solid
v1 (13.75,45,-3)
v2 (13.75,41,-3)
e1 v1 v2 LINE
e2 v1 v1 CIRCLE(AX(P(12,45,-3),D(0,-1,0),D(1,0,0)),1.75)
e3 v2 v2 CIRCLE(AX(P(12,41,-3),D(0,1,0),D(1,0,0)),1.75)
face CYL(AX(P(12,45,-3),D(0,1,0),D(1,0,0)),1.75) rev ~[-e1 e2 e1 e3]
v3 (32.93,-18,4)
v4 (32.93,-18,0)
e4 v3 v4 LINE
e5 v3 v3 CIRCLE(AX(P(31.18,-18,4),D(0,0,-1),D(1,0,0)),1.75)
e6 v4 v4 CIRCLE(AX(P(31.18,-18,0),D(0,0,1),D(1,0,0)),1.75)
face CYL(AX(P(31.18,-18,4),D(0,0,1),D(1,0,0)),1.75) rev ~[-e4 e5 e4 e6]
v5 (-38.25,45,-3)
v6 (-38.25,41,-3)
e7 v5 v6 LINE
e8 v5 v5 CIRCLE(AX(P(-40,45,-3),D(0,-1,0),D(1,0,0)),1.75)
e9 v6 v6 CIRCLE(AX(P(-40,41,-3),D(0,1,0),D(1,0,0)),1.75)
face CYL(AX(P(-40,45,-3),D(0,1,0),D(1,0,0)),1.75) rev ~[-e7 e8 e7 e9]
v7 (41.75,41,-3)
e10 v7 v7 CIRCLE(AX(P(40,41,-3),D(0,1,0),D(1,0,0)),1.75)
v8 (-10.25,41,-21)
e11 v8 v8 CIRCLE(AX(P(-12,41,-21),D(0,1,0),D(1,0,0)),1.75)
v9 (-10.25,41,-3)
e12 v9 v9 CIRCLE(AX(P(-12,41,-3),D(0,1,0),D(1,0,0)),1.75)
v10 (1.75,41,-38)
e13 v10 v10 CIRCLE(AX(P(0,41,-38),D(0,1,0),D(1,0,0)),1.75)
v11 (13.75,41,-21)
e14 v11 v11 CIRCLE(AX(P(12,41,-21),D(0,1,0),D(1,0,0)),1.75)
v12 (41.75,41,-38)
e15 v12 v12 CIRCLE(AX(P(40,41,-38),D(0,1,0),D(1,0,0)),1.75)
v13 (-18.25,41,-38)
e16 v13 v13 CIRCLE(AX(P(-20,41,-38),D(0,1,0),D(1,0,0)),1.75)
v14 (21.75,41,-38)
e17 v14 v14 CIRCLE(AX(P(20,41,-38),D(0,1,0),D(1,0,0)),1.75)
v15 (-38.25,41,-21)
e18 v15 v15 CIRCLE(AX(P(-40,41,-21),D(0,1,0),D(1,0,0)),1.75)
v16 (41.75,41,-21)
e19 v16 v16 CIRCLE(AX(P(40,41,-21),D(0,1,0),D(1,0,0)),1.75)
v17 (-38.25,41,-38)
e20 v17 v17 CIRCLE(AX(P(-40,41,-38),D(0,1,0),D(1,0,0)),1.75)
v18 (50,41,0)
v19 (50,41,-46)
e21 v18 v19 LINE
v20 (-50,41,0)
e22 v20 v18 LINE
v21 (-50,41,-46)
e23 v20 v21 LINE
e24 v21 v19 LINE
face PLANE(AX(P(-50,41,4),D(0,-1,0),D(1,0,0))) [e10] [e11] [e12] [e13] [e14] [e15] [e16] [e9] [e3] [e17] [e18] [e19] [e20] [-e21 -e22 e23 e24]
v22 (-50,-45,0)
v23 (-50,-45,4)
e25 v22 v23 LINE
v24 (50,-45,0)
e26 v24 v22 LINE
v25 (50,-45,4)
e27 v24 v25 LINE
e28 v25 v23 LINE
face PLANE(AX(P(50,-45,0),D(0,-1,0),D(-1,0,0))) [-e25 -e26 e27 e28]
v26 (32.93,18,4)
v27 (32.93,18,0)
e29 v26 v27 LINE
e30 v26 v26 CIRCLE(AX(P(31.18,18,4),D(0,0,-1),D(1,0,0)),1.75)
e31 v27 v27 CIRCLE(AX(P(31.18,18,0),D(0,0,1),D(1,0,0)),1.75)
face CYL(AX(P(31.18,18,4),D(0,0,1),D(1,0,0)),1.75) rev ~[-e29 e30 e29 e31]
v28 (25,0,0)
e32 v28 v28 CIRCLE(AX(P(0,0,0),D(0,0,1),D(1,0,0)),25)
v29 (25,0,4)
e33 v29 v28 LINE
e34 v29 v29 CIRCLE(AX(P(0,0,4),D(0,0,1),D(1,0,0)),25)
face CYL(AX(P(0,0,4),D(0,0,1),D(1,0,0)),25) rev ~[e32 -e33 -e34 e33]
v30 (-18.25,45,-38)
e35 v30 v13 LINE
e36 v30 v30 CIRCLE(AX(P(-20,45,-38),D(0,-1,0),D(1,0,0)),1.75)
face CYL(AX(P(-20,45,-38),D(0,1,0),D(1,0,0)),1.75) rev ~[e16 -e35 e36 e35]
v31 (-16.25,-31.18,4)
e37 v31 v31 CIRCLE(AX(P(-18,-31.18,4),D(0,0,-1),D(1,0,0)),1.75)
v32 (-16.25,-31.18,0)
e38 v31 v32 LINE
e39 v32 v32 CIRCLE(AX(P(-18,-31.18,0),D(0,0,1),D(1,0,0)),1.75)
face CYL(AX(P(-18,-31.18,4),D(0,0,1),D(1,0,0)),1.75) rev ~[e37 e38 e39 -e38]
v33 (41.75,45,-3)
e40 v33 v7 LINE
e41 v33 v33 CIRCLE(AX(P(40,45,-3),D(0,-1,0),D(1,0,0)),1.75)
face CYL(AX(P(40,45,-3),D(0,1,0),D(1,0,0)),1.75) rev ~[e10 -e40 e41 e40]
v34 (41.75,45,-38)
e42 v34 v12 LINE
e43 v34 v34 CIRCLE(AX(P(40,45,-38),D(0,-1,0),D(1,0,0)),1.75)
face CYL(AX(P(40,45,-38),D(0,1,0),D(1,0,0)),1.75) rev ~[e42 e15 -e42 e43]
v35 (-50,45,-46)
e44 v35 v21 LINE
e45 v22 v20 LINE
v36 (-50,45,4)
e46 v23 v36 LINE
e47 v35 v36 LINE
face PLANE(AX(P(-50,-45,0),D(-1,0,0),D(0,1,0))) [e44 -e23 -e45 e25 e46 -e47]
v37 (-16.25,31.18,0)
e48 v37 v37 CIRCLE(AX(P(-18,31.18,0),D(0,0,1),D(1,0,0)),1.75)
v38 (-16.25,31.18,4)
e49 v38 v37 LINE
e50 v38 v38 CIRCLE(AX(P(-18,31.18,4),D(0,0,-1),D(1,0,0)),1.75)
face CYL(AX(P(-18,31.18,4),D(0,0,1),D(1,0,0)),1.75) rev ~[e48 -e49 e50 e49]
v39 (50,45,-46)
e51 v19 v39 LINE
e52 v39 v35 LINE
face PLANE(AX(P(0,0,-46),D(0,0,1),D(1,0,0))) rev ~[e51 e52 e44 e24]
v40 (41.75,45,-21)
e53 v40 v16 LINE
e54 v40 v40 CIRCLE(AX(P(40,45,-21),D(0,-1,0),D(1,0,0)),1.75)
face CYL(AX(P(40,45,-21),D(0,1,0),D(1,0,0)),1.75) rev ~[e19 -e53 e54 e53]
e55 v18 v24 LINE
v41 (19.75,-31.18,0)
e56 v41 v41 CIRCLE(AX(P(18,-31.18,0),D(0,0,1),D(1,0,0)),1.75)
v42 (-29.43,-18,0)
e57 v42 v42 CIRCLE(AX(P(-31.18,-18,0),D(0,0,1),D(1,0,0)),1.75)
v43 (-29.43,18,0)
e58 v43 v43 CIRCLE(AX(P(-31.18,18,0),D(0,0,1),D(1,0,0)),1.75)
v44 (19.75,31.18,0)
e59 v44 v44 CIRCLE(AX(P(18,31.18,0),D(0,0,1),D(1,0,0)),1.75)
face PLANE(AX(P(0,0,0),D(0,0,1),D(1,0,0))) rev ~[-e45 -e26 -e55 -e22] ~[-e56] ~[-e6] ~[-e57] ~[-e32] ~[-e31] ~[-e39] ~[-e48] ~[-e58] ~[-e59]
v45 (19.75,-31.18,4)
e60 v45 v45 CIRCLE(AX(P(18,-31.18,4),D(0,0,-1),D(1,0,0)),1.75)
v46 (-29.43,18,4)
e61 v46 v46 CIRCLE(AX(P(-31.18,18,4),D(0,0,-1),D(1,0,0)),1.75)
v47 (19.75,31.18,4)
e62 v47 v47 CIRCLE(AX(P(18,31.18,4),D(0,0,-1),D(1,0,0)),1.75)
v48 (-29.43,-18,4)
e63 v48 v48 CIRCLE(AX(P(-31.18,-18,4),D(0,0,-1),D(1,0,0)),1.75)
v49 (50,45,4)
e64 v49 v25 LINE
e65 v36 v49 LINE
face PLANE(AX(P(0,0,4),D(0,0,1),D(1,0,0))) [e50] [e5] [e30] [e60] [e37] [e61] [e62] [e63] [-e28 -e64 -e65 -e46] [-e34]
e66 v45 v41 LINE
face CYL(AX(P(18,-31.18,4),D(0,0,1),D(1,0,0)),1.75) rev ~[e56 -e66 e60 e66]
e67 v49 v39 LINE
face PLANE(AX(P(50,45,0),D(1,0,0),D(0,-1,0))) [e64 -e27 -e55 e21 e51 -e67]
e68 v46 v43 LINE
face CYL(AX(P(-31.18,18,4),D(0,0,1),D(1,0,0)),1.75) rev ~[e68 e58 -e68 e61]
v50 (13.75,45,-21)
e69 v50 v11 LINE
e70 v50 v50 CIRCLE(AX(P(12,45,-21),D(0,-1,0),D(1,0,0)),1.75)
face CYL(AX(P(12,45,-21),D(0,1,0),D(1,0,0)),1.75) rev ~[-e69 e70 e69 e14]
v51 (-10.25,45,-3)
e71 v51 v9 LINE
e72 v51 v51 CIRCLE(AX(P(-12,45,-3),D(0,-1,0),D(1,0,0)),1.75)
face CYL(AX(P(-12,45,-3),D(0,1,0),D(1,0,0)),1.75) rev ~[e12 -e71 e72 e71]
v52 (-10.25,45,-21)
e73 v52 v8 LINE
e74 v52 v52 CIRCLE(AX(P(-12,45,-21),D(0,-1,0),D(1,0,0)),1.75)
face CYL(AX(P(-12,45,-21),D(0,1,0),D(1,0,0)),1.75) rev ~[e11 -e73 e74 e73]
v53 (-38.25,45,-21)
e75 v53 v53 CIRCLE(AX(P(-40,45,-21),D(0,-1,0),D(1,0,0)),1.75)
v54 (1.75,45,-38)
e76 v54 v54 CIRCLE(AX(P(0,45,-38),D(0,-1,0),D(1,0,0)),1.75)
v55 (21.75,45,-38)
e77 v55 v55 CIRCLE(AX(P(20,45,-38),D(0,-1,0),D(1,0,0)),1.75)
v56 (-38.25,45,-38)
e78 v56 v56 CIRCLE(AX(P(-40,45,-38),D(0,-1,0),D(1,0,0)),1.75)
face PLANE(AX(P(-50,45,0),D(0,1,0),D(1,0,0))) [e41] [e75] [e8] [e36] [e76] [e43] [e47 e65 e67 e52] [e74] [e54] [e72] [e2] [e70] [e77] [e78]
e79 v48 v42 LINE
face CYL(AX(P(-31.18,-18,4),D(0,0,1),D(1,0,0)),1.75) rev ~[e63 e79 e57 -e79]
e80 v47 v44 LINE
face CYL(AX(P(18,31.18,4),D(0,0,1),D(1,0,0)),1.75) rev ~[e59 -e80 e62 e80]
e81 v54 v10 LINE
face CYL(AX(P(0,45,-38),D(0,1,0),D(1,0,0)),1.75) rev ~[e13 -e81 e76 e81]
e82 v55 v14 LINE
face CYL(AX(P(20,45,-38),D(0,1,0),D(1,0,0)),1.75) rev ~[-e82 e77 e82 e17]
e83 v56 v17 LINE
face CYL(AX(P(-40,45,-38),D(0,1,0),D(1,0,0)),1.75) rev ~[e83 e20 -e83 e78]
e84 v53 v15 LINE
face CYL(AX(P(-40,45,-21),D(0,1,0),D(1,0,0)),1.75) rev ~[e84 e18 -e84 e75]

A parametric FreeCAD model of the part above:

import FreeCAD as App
import Part
import Sketcher
from FreeCAD import Vector
Q = App.Units.Quantity


def add_polygon(sketch, points):
    """Adds a closed chain of lines whose ends are joined by coincident constraints."""
    first, n = sketch.GeometryCount, len(points)
    for a, b in zip(points, points[1:] + points[:1]):
        sketch.addGeometry(Part.LineSegment(App.Vector(*a, 0), App.Vector(*b, 0)), False)
    for i in range(n):
        sketch.addConstraint(Sketcher.Constraint("Coincident", first + i, 2, first + (i + 1) % n, 1))

doc = App.newDocument("Part")
body = doc.addObject("PartDesign::Body", "Body")

# Sketch on XY plane
sketch1 = body.newObject("Sketcher::SketchObject", "Sketch")
sketch1.AttachmentSupport = (doc.getObject("XY_Plane"), [""])
sketch1.MapMode = "FlatFace"
add_polygon(sketch1, [(50, 45), (-50, 45), (-50, -45), (50, -45)])  # lines 0-3
sketch1.addConstraint(Sketcher.Constraint("Horizontal", 0))
sketch1.addConstraint(Sketcher.Constraint("Vertical", 1))
sketch1.addConstraint(Sketcher.Constraint("Horizontal", 2))
sketch1.addConstraint(Sketcher.Constraint("Vertical", 3))
sketch1.addConstraint(Sketcher.Constraint("Symmetric", 0, 2, 2, 2, -1, 1))
sketch1.addConstraint(Sketcher.Constraint("DistanceX", 0, 2, 0, 1, Q("3.937 in")))
sketch1.addConstraint(Sketcher.Constraint("DistanceY", 1, 2, 1, 1, Q("3.5433 in")))
pad1 = body.newObject("PartDesign::Pad", "Pad")
pad1.Profile = sketch1
pad1.Length = 4

# Sketch on XY plane
sketch2 = body.newObject("Sketcher::SketchObject", "Sketch001")
sketch2.AttachmentSupport = (doc.getObject("XY_Plane"), [""])
sketch2.MapMode = "FlatFace"
sketch2.AttachmentOffset = App.Placement(Vector(0, 0, 4), App.Rotation())
add_polygon(sketch2, [(50, 41), (50, 45), (-50, 45), (-50, 41)])  # lines 0-3
sketch2.addConstraint(Sketcher.Constraint("Vertical", 0))
sketch2.addConstraint(Sketcher.Constraint("Horizontal", 1))
sketch2.addConstraint(Sketcher.Constraint("Vertical", 2))
sketch2.addConstraint(Sketcher.Constraint("Horizontal", 3))
sketch2.addConstraint(Sketcher.Constraint("DistanceX", 1, 2, 1, 1, Q("3.937 in")))
sketch2.addConstraint(Sketcher.Constraint("DistanceY", 0, 1, 0, 2, 4.0))
sketch2.addConstraint(Sketcher.Constraint("DistanceX", -1, 1, 0, 2, Q("1.9685 in")))
sketch2.addConstraint(Sketcher.Constraint("DistanceY", -1, 1, 0, 2, 45.0))
pad2 = body.newObject("PartDesign::Pad", "Pad001")
pad2.Profile = sketch2
pad2.Length = Q("1.9685039 in")
pad2.Reversed = True

# Sketch on XY plane
sketch3 = body.newObject("Sketcher::SketchObject", "Sketch002")
sketch3.AttachmentSupport = (doc.getObject("XY_Plane"), [""])
sketch3.MapMode = "FlatFace"
sketch3.AttachmentOffset = App.Placement(Vector(0, 0, 4), App.Rotation())
sketch3.addGeometry(Part.Circle(Vector(-18, -31.18, 0), Vector(0, 0, 1), 1.75), False)
sketch3.addGeometry(Part.Circle(Vector(18, -31.18, 0), Vector(0, 0, 1), 1.75), False)
sketch3.addGeometry(Part.Circle(Vector(-18, 31.18, 0), Vector(0, 0, 1), 1.75), False)
sketch3.addGeometry(Part.Circle(Vector(18, 31.18, 0), Vector(0, 0, 1), 1.75), False)
sketch3.addConstraint(Sketcher.Constraint("Equal", 0, 1))
sketch3.addConstraint(Sketcher.Constraint("Equal", 1, 2))
sketch3.addConstraint(Sketcher.Constraint("Equal", 2, 3))
sketch3.addConstraint(Sketcher.Constraint("Symmetric", 1, 3, 2, 3, -1, 1))
sketch3.addConstraint(Sketcher.Constraint("Symmetric", 0, 3, 3, 3, -1, 1))
sketch3.addConstraint(Sketcher.Constraint("Symmetric", 0, 3, 1, 3, -2))
sketch3.addConstraint(Sketcher.Constraint("Diameter", 0, Q("0.1378 in")))
sketch3.addConstraint(Sketcher.Constraint("DistanceX", 0, 3, 1, 3, 36.0))
sketch3.addConstraint(Sketcher.Constraint("DistanceY", 0, 3, 2, 3, 62.36))
pocket1 = body.newObject("PartDesign::Pocket", "Pocket")
pocket1.Profile = sketch3
pocket1.Length = Q("1.9685039 in")

# Sketch on XY plane
sketch4 = body.newObject("Sketcher::SketchObject", "Sketch003")
sketch4.AttachmentSupport = (doc.getObject("XY_Plane"), [""])
sketch4.MapMode = "FlatFace"
sketch4.AttachmentOffset = App.Placement(Vector(0, 0, 4), App.Rotation())
sketch4.addGeometry(Part.Circle(Vector(-31.18, -18, 0), Vector(0, 0, 1), 1.75), False)
sketch4.addGeometry(Part.Circle(Vector(31.18, -18, 0), Vector(0, 0, 1), 1.75), False)
sketch4.addGeometry(Part.Circle(Vector(-31.18, 18, 0), Vector(0, 0, 1), 1.75), False)
sketch4.addGeometry(Part.Circle(Vector(31.18, 18, 0), Vector(0, 0, 1), 1.75), False)
sketch4.addConstraint(Sketcher.Constraint("Equal", 0, 1))
sketch4.addConstraint(Sketcher.Constraint("Equal", 1, 2))
sketch4.addConstraint(Sketcher.Constraint("Equal", 2, 3))
sketch4.addConstraint(Sketcher.Constraint("Symmetric", 1, 3, 2, 3, -1, 1))
sketch4.addConstraint(Sketcher.Constraint("Symmetric", 0, 3, 3, 3, -1, 1))
sketch4.addConstraint(Sketcher.Constraint("Symmetric", 0, 3, 1, 3, -2))
sketch4.addConstraint(Sketcher.Constraint("Diameter", 0, Q("0.1378 in")))
sketch4.addConstraint(Sketcher.Constraint("DistanceX", 0, 3, 1, 3, 62.36))
sketch4.addConstraint(Sketcher.Constraint("DistanceY", 0, 3, 2, 3, 36.0))
pocket2 = body.newObject("PartDesign::Pocket", "Pocket001")
pocket2.Profile = sketch4
pocket2.Length = Q("1.9685039 in")

# Sketch on XY plane
sketch5 = body.newObject("Sketcher::SketchObject", "Sketch004")
sketch5.AttachmentSupport = (doc.getObject("XY_Plane"), [""])
sketch5.MapMode = "FlatFace"
sketch5.AttachmentOffset = App.Placement(Vector(0, 0, 4), App.Rotation())
sketch5.addGeometry(Part.Circle(Vector(0, 0, 0), Vector(0, 0, 1), 25), False)
sketch5.addConstraint(Sketcher.Constraint("Coincident", 0, 3, -1, 1))
sketch5.addConstraint(Sketcher.Constraint("Diameter", 0, Q("1.9685 in")))
pocket3 = body.newObject("PartDesign::Pocket", "Pocket002")
pocket3.Profile = sketch5
pocket3.Length = Q("1.7189961 in")

# Sketch on XZ plane
sketch6 = body.newObject("Sketcher::SketchObject", "Sketch005")
sketch6.AttachmentSupport = (doc.getObject("XZ_Plane"), [""])
sketch6.MapMode = "FlatFace"
sketch6.AttachmentOffset = App.Placement(Vector(0, 0, -45), App.Rotation())
sketch6.addGeometry(Part.Circle(Vector(-12, -21, 0), Vector(0, 0, 1), 1.75), False)
sketch6.addGeometry(Part.Circle(Vector(-12, -3, 0), Vector(0, 0, 1), 1.75), False)
sketch6.addConstraint(Sketcher.Constraint("Equal", 0, 1))
sketch6.addConstraint(Sketcher.Constraint("Vertical", 0, 3, 1, 3))
sketch6.addConstraint(Sketcher.Constraint("Diameter", 0, Q("0.1378 in")))
sketch6.addConstraint(Sketcher.Constraint("DistanceY", 1, 3, -1, 1, Q("0.1181 in")))
sketch6.addConstraint(Sketcher.Constraint("DistanceX", 0, 3, -1, 1, 12.0))
sketch6.addConstraint(Sketcher.Constraint("DistanceY", 0, 3, -1, 1, 21.0))
pocket4 = body.newObject("PartDesign::Pocket", "Pocket003")
pocket4.Profile = sketch6
pocket4.Length = Q("1.7189961 in")
pocket4.Reversed = True

# Sketch on XZ plane
sketch7 = body.newObject("Sketcher::SketchObject", "Sketch006")
sketch7.AttachmentSupport = (doc.getObject("XZ_Plane"), [""])
sketch7.MapMode = "FlatFace"
sketch7.AttachmentOffset = App.Placement(Vector(0, 0, -45), App.Rotation())
sketch7.addGeometry(Part.Circle(Vector(12, -3, 0), Vector(0, 0, 1), 1.75), False)
sketch7.addGeometry(Part.Circle(Vector(12, -21, 0), Vector(0, 0, 1), 1.75), False)
sketch7.addConstraint(Sketcher.Constraint("Equal", 0, 1))
sketch7.addConstraint(Sketcher.Constraint("Vertical", 0, 3, 1, 3))
sketch7.addConstraint(Sketcher.Constraint("Diameter", 0, Q("0.1378 in")))
sketch7.addConstraint(Sketcher.Constraint("DistanceY", 0, 3, -1, 1, Q("0.1181 in")))
sketch7.addConstraint(Sketcher.Constraint("DistanceX", -1, 1, 0, 3, 12.0))
sketch7.addConstraint(Sketcher.Constraint("DistanceY", 1, 3, -1, 1, 21.0))
pocket5 = body.newObject("PartDesign::Pocket", "Pocket004")
pocket5.Profile = sketch7
pocket5.Length = Q("1.7189961 in")
pocket5.Reversed = True

# Sketch on XZ plane
sketch8 = body.newObject("Sketcher::SketchObject", "Sketch007")
sketch8.AttachmentSupport = (doc.getObject("XZ_Plane"), [""])
sketch8.MapMode = "FlatFace"
sketch8.AttachmentOffset = App.Placement(Vector(0, 0, -45), App.Rotation())
sketch8.addGeometry(Part.Circle(Vector(-40, -3, 0), Vector(0, 0, 1), 1.75), False)
sketch8.addGeometry(Part.Circle(Vector(-40, -21, 0), Vector(0, 0, 1), 1.75), False)
sketch8.addConstraint(Sketcher.Constraint("Equal", 0, 1))
sketch8.addConstraint(Sketcher.Constraint("Vertical", 0, 3, 1, 3))
sketch8.addConstraint(Sketcher.Constraint("Diameter", 0, Q("0.1378 in")))
sketch8.addConstraint(Sketcher.Constraint("DistanceX", 0, 3, -1, 1, Q("1.5748 in")))
sketch8.addConstraint(Sketcher.Constraint("DistanceY", 0, 3, -1, 1, Q("0.1181 in")))
sketch8.addConstraint(Sketcher.Constraint("DistanceY", 1, 3, -1, 1, 21.0))
pocket6 = body.newObject("PartDesign::Pocket", "Pocket005")
pocket6.Profile = sketch8
pocket6.Length = Q("1.7189961 in")
pocket6.Reversed = True

# Sketch on XZ plane
sketch9 = body.newObject("Sketcher::SketchObject", "Sketch008")
sketch9.AttachmentSupport = (doc.getObject("XZ_Plane"), [""])
sketch9.MapMode = "FlatFace"
sketch9.AttachmentOffset = App.Placement(Vector(0, 0, -45), App.Rotation())
sketch9.addGeometry(Part.Circle(Vector(40, -3, 0), Vector(0, 0, 1), 1.75), False)
sketch9.addGeometry(Part.Circle(Vector(40, -21, 0), Vector(0, 0, 1), 1.75), False)
sketch9.addConstraint(Sketcher.Constraint("Equal", 0, 1))
sketch9.addConstraint(Sketcher.Constraint("Vertical", 0, 3, 1, 3))
sketch9.addConstraint(Sketcher.Constraint("Diameter", 0, Q("0.1378 in")))
sketch9.addConstraint(Sketcher.Constraint("DistanceX", -1, 1, 0, 3, Q("1.5748 in")))
sketch9.addConstraint(Sketcher.Constraint("DistanceY", 0, 3, -1, 1, Q("0.1181 in")))
sketch9.addConstraint(Sketcher.Constraint("DistanceY", 1, 3, -1, 1, 21.0))
pocket7 = body.newObject("PartDesign::Pocket", "Pocket006")
pocket7.Profile = sketch9
pocket7.Length = Q("1.7189961 in")
pocket7.Reversed = True

# Sketch on XZ plane
sketch10 = body.newObject("Sketcher::SketchObject", "Sketch009")
sketch10.AttachmentSupport = (doc.getObject("XZ_Plane"), [""])
sketch10.MapMode = "FlatFace"
sketch10.AttachmentOffset = App.Placement(Vector(0, 0, -45), App.Rotation())
sketch10.addGeometry(Part.Circle(Vector(-40, -38, 0), Vector(0, 0, 1), 1.75), False)
sketch10.addGeometry(Part.Circle(Vector(-20, -38, 0), Vector(0, 0, 1), 1.75), False)
sketch10.addGeometry(Part.Circle(Vector(0, -38, 0), Vector(0, 0, 1), 1.75), False)
sketch10.addGeometry(Part.Circle(Vector(20, -38, 0), Vector(0, 0, 1), 1.75), False)
sketch10.addGeometry(Part.Circle(Vector(40, -38, 0), Vector(0, 0, 1), 1.75), False)
sketch10.addConstraint(Sketcher.Constraint("Equal", 0, 1))
sketch10.addConstraint(Sketcher.Constraint("Equal", 1, 2))
sketch10.addConstraint(Sketcher.Constraint("Equal", 2, 3))
sketch10.addConstraint(Sketcher.Constraint("Equal", 3, 4))
sketch10.addConstraint(Sketcher.Constraint("Symmetric", 1, 3, 3, 3, -2))
sketch10.addConstraint(Sketcher.Constraint("Symmetric", 0, 3, 4, 3, -2))
sketch10.addConstraint(Sketcher.Constraint("PointOnObject", 2, 3, -2))
sketch10.addConstraint(Sketcher.Constraint("Horizontal", 0, 3, 1, 3))
sketch10.addConstraint(Sketcher.Constraint("Horizontal", 1, 3, 2, 3))
sketch10.addConstraint(Sketcher.Constraint("Diameter", 0, Q("0.1378 in")))
sketch10.addConstraint(Sketcher.Constraint("DistanceX", 0, 3, -1, 1, Q("1.5748 in")))
sketch10.addConstraint(Sketcher.Constraint("DistanceX", 1, 3, -1, 1, Q("0.7874 in")))
sketch10.addConstraint(Sketcher.Constraint("DistanceY", 0, 3, -1, 1, 38.0))
pocket8 = body.newObject("PartDesign::Pocket", "Pocket007")
pocket8.Profile = sketch10
pocket8.Length = Q("1.7189961 in")
pocket8.Reversed = True

doc.recompute()
